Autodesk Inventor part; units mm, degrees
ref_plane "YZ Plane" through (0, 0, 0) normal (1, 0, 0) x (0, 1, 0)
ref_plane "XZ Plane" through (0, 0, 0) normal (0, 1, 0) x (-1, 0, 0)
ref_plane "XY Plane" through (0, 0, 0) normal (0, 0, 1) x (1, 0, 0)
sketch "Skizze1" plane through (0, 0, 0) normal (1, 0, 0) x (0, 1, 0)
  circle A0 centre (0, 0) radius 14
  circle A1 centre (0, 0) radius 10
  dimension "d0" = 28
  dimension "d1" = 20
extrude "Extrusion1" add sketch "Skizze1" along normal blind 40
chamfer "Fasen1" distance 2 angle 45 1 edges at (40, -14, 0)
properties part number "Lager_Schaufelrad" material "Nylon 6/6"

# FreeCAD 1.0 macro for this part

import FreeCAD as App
import Part
import Sketcher

V = App.Vector
Q = App.Units.Quantity


def edges_at(feature, points):
    """Names of the edges that pass closest to the given points."""
    edges = feature.Shape.Edges
    near = lambda p: min(range(len(edges)), key=lambda i: edges[i].distToShape(Part.Vertex(*p))[0])
    return sorted({f"Edge{near(p) + 1}" for p in points})

doc = App.newDocument("Part")
body = doc.addObject("PartDesign::Body", "Body")

# Sketch on YZ plane
sketch1 = body.newObject("Sketcher::SketchObject", "Sketch")
sketch1.AttachmentSupport = (doc.getObject("YZ_Plane"), [""])
sketch1.MapMode = "FlatFace"
sketch1.addGeometry([
    Part.Circle(V(0, 0, 0), V(0, 0, 1), 14),
    Part.Circle(V(0, 0, 0), V(0, 0, 1), 10),
], False)
sketch1.addConstraint([
    Sketcher.Constraint("Coincident", 0, 3, -1, 1),
    Sketcher.Constraint("Coincident", 1, 3, -1, 1),
    Sketcher.Constraint("Diameter", 0, Q("28 mm")),
    Sketcher.Constraint("Diameter", 1, Q("20 mm")),
])
pad1 = body.newObject("PartDesign::Pad", "Pad")
pad1.Profile = sketch1
pad1.Length = 40
doc.recompute()

chamfer = body.newObject("PartDesign::Chamfer", "Chamfer")
chamfer.Base = (pad1, edges_at(pad1, [(40, -14, 0)]))
chamfer.Size = 2

doc.recompute()
